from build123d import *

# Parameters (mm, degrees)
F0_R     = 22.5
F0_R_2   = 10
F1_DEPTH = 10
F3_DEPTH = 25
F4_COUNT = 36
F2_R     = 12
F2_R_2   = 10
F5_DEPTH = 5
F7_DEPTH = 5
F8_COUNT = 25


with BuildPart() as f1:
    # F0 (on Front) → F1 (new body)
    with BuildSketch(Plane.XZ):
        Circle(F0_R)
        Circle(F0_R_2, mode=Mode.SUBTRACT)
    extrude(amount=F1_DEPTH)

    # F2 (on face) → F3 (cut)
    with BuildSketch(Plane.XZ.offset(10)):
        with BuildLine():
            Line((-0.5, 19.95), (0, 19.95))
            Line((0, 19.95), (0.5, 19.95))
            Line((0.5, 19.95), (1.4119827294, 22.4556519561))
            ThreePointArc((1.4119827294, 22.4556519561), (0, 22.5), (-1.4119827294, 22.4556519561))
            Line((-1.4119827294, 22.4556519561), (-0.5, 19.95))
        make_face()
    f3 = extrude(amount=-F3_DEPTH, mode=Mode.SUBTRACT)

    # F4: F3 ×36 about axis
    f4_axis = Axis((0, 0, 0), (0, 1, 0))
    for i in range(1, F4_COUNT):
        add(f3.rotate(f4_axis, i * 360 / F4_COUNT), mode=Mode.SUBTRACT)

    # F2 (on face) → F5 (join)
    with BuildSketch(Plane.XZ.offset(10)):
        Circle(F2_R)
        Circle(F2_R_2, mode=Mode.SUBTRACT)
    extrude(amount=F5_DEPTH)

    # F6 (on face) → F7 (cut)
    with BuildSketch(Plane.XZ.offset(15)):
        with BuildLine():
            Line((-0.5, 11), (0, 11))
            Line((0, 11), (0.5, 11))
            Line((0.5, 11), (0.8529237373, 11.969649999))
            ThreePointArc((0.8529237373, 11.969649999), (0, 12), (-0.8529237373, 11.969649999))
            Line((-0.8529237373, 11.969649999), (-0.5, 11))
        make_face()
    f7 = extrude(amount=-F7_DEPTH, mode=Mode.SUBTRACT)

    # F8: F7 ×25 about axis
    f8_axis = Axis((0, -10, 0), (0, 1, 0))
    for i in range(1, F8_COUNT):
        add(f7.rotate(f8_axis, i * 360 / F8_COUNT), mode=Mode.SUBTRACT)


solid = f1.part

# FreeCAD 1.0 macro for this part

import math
import FreeCAD as App
import Part
import Sketcher
from FreeCAD import Vector
Q = App.Units.Quantity

doc = App.newDocument("Part")
body = doc.addObject("PartDesign::Body", "Body")

sketch1 = body.newObject("Sketcher::SketchObject", "Sketch")
sketch1.AttachmentSupport = (doc.getObject("XZ_Plane"), [""])
sketch1.MapMode = "FlatFace"
sketch1.addGeometry([
    Part.Circle(Vector(0, 0, 0), Vector(0, 0, 1), 22),
    Part.Circle(Vector(0, 0, 0), Vector(0, 0, 1), 10),
], False)
sketch1.addConstraint([
    Sketcher.Constraint("Coincident", 0, 3, -1, 1),
    Sketcher.Constraint("Coincident", 1, 3, -1, 1),
    Sketcher.Constraint("Diameter", 0, 45.0),
    Sketcher.Constraint("Diameter", 1, 20.0),
])
pad1 = body.newObject("PartDesign::Pad", "Pad")
pad1.Profile = sketch1
pad1.Length = 10

sketch2 = body.newObject("Sketcher::SketchObject", "Sketch001")
sketch2.AttachmentSupport = (doc.getObject("XZ_Plane"), [""])
sketch2.MapMode = "FlatFace"
sketch2.AttachmentOffset = App.Placement(Vector(0, 0, 10), App.Rotation())
sketch2.addGeometry([
    Part.LineSegment(Vector(-0.5, 19.9, 0), Vector(0.5, 19.9, 0)),
    Part.LineSegment(Vector(0.5, 19.9, 0), Vector(1.4, 22.5, 0)),
    Part.ArcOfCircle(Part.Circle(Vector(0, 0, 0), Vector(0, 0, 1), 22.5), math.radians(86.4), math.radians(93.6)),
    Part.LineSegment(Vector(-1.4, 22.5, 0), Vector(-0.5, 19.9, 0)),
], False)
sketch2.addConstraint([
    Sketcher.Constraint("Coincident", 0, 2, 1, 1),
    Sketcher.Constraint("Coincident", 1, 2, 2, 1),
    Sketcher.Constraint("Coincident", 2, 2, 3, 1),
    Sketcher.Constraint("Coincident", 3, 2, 0, 1),
    Sketcher.Constraint("Horizontal", 0),
    Sketcher.Constraint("Coincident", 2, 3, -1, 1),
    Sketcher.Constraint("Horizontal", 1, 2, 2, 2),
    Sketcher.Constraint("Equal", 1, 3),
    Sketcher.Constraint("Radius", 2, 22.5),
    Sketcher.Constraint("DistanceX", 0, 1, 0, 2, 1.0),
    Sketcher.Constraint("Angle", 1, Q("70 deg")),
    Sketcher.Constraint("DistanceY", -1, 1, 0, 2, 19.95),
])
pocket1 = body.newObject("PartDesign::Pocket", "Pocket")
pocket1.Profile = sketch2
pocket1.Length = 25
doc.recompute()

polarpattern = body.newObject("PartDesign::PolarPattern", "PolarPattern")
polarpattern.Originals = [pocket1]
polarpattern.Axis = (doc.getObject("Y_Axis"), [""])
polarpattern.Angle = 360
polarpattern.Occurrences = 36
body.Tip = polarpattern

sketch3 = body.newObject("Sketcher::SketchObject", "Sketch002")
sketch3.AttachmentSupport = (doc.getObject("XZ_Plane"), [""])
sketch3.MapMode = "FlatFace"
sketch3.AttachmentOffset = App.Placement(Vector(0, 0, 10), App.Rotation())
sketch3.addGeometry([
    Part.Circle(Vector(0, 0, 0), Vector(0, 0, 1), 12),
    Part.Circle(Vector(0, 0, 0), Vector(0, 0, 1), 10),
], False)
sketch3.addConstraint([
    Sketcher.Constraint("Coincident", 0, 3, -1, 1),
    Sketcher.Constraint("Coincident", 1, 3, -1, 1),
    Sketcher.Constraint("Diameter", 0, 24.0),
    Sketcher.Constraint("Diameter", 1, 20.0),
])
pad2 = body.newObject("PartDesign::Pad", "Pad001")
pad2.Profile = sketch3
pad2.Length = 5

sketch4 = body.newObject("Sketcher::SketchObject", "Sketch003")
sketch4.AttachmentSupport = (doc.getObject("XZ_Plane"), [""])
sketch4.MapMode = "FlatFace"
sketch4.AttachmentOffset = App.Placement(Vector(0, 0, 15), App.Rotation())
sketch4.addGeometry([
    Part.LineSegment(Vector(-0.5, 11, 0), Vector(0.5, 11, 0)),
    Part.LineSegment(Vector(0.5, 11, 0), Vector(0.9, 12, 0)),
    Part.ArcOfCircle(Part.Circle(Vector(0, 0, 0), Vector(0, 0, 1), 12), math.radians(85.92), math.radians(94.08)),
    Part.LineSegment(Vector(-0.9, 12, 0), Vector(-0.5, 11, 0)),
], False)
sketch4.addConstraint([
    Sketcher.Constraint("Coincident", 0, 2, 1, 1),
    Sketcher.Constraint("Coincident", 1, 2, 2, 1),
    Sketcher.Constraint("Coincident", 2, 2, 3, 1),
    Sketcher.Constraint("Coincident", 3, 2, 0, 1),
    Sketcher.Constraint("Horizontal", 0),
    Sketcher.Constraint("Coincident", 2, 3, -1, 1),
    Sketcher.Constraint("Horizontal", 1, 2, 2, 2),
    Sketcher.Constraint("Equal", 1, 3),
    Sketcher.Constraint("Radius", 2, 12.0),
    Sketcher.Constraint("DistanceX", 0, 1, 0, 2, 1.0),
    Sketcher.Constraint("Angle", 1, Q("70 deg")),
    Sketcher.Constraint("DistanceY", -1, 1, 0, 2, 11.0),
])
pocket2 = body.newObject("PartDesign::Pocket", "Pocket001")
pocket2.Profile = sketch4
pocket2.Length = 5
doc.recompute()

polarpattern2 = body.newObject("PartDesign::PolarPattern", "PolarPattern001")
polarpattern2.Originals = [pocket2]
polarpattern2.Axis = (doc.getObject("Y_Axis"), [""])
polarpattern2.Angle = 360
polarpattern2.Occurrences = 25
body.Tip = polarpattern2

doc.recompute()
